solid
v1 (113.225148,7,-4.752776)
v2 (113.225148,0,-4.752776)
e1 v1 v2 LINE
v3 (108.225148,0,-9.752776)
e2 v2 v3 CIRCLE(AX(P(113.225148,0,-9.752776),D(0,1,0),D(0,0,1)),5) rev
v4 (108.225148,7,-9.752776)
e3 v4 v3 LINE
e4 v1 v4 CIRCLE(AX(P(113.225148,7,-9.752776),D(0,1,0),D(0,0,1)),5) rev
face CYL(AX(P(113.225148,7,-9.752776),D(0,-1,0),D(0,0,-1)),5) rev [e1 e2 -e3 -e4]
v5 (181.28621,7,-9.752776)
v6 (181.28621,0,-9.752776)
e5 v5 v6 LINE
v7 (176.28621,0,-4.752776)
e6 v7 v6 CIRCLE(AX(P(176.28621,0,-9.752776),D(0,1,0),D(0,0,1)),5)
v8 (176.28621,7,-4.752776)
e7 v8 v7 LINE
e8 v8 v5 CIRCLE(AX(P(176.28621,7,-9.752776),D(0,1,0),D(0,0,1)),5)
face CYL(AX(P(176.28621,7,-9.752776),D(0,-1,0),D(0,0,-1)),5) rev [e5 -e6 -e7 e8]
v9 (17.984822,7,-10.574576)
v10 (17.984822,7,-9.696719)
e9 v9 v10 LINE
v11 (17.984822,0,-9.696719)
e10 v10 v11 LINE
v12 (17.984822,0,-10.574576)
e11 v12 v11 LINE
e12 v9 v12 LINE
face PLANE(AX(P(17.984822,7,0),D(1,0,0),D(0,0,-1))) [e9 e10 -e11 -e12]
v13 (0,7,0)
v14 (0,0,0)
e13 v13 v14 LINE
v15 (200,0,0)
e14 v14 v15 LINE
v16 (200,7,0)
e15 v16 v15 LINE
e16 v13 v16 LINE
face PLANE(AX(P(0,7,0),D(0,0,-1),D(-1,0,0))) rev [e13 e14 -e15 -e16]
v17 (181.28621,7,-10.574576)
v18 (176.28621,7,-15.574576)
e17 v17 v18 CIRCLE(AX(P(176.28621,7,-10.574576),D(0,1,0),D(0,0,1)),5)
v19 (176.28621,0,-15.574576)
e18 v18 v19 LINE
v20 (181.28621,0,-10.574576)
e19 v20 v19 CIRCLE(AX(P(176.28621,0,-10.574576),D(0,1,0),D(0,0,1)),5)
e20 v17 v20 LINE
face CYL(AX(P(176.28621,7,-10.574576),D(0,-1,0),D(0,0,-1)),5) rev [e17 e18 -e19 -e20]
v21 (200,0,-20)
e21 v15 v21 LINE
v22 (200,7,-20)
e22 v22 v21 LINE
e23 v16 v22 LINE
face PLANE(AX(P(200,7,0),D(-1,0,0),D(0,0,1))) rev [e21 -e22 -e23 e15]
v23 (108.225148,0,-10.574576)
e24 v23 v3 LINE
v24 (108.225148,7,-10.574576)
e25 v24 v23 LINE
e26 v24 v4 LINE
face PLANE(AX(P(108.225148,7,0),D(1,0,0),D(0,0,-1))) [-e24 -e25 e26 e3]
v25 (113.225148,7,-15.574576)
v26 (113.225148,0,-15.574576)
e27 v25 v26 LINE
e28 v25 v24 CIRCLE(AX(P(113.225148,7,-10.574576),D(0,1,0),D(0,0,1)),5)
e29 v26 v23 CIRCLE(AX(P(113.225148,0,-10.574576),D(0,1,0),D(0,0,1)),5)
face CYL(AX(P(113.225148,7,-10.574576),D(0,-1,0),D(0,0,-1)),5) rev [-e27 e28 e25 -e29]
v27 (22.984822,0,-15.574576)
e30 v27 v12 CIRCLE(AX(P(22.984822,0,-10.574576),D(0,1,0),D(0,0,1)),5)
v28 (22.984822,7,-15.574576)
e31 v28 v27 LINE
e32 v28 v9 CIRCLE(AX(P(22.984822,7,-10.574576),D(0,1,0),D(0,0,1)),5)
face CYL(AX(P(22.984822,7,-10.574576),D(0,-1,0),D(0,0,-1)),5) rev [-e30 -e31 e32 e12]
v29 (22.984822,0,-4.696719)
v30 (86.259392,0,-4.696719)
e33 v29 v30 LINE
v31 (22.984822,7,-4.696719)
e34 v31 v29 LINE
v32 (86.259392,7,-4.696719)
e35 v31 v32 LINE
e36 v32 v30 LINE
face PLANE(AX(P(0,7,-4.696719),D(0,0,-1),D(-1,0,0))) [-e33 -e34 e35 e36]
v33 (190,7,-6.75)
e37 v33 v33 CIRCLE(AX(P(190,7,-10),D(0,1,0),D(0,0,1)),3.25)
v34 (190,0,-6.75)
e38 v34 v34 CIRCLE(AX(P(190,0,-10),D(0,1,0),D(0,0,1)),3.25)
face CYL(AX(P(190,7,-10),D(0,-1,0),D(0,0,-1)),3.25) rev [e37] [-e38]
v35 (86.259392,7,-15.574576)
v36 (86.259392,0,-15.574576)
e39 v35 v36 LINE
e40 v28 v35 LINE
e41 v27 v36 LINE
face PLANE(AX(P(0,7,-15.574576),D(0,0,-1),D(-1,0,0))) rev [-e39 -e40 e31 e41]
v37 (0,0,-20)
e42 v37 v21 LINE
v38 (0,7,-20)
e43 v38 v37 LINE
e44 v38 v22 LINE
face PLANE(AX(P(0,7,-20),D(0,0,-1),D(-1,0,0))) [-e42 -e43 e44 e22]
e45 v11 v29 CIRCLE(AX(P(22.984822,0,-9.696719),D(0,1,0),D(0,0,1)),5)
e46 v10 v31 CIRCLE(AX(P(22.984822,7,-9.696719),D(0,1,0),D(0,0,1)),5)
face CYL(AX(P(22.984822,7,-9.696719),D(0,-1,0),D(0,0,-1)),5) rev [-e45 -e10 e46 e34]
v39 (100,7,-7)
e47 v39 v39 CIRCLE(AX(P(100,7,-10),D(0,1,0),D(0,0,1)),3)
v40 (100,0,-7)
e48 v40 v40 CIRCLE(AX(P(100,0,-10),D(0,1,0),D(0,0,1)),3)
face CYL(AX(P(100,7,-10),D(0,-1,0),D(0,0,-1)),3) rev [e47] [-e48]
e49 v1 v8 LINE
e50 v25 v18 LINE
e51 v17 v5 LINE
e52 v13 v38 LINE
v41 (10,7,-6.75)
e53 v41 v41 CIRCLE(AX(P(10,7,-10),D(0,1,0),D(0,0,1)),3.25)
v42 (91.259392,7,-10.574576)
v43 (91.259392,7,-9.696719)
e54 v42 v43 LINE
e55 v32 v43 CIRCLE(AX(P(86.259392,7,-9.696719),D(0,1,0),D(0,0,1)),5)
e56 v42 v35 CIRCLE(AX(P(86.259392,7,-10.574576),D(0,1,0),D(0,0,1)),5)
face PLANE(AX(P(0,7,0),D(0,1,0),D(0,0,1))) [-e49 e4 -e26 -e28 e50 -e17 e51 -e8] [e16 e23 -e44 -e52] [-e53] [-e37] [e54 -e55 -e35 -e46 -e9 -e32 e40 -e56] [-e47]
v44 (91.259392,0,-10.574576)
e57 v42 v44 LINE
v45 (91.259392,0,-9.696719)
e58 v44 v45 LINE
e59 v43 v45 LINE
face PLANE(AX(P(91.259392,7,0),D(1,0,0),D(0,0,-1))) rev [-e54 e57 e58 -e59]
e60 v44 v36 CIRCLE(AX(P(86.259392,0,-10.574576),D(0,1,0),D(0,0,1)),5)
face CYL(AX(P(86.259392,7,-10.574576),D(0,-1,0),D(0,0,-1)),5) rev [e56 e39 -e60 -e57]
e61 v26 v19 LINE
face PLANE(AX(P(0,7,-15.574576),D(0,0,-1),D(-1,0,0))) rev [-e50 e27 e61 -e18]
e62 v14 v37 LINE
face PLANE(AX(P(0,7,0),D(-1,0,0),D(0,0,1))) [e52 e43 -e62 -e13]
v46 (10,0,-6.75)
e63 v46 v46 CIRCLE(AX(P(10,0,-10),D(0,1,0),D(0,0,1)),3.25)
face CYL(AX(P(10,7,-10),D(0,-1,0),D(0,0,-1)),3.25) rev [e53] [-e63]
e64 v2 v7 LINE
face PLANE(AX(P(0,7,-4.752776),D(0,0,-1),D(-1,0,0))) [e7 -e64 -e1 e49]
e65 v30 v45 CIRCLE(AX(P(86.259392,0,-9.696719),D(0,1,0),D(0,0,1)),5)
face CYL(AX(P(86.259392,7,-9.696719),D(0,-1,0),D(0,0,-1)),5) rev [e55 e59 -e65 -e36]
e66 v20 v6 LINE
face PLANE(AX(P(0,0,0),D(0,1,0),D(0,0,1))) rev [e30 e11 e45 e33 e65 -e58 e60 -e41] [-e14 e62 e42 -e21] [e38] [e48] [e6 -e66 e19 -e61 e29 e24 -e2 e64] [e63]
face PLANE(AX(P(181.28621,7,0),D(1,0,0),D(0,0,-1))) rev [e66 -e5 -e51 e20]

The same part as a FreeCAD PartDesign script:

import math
import FreeCAD as App
import Part
import Sketcher
from FreeCAD import Vector
Q = App.Units.Quantity


def add_polygon(sketch, points):
    """Adds a closed chain of lines whose ends are joined by coincident constraints."""
    first, n = sketch.GeometryCount, len(points)
    for a, b in zip(points, points[1:] + points[:1]):
        sketch.addGeometry(Part.LineSegment(App.Vector(*a, 0), App.Vector(*b, 0)), False)
    for i in range(n):
        sketch.addConstraint(Sketcher.Constraint("Coincident", first + i, 2, first + (i + 1) % n, 1))

doc = App.newDocument("Part")
body = doc.addObject("PartDesign::Body", "Body")

sketch1 = doc.addObject("Sketcher::SketchObject", "Sketch")
body.addObject(sketch1)
sketch1.AttachmentSupport = (doc.XZ_Plane, [""])
sketch1.MapMode = "FlatFace"
add_polygon(sketch1, [(0, -20), (0, 0), (200, 0), (200, -20)])
sketch1.addGeometry(Part.Circle(Vector(10, -10, 0), Vector(0, 0, 1), 3.2), False)
sketch1.addGeometry(Part.Circle(Vector(100, -10, 0), Vector(0, 0, 1), 3), False)
sketch1.addGeometry(Part.Circle(Vector(190, -10, 0), Vector(0, 0, 1), 3.2), False)
sketch1.addGeometry(Part.ArcOfCircle(Part.Circle(Vector(23, -10.6, 0), Vector(0, 0, 1), 5), math.radians(180), math.radians(270)), False)
sketch1.addGeometry(Part.LineSegment(Vector(23, -15.6, 0), Vector(86.3, -15.6, 0)), False)
sketch1.addGeometry(Part.ArcOfCircle(Part.Circle(Vector(86.3, -10.6, 0), Vector(0, 0, 1), 5), math.radians(-90), math.radians(0)), False)
sketch1.addGeometry(Part.LineSegment(Vector(91.3, -10.6, 0), Vector(91.3, -9.7, 0)), False)
sketch1.addGeometry(Part.ArcOfCircle(Part.Circle(Vector(86.3, -9.7, 0), Vector(0, 0, 1), 5), math.radians(0), math.radians(90)), False)
sketch1.addGeometry(Part.LineSegment(Vector(86.3, -4.7, 0), Vector(23, -4.7, 0)), False)
sketch1.addGeometry(Part.ArcOfCircle(Part.Circle(Vector(23, -9.7, 0), Vector(0, 0, 1), 5), math.radians(90), math.radians(180)), False)
sketch1.addGeometry(Part.LineSegment(Vector(18, -9.7, 0), Vector(18, -10.6, 0)), False)
sketch1.addGeometry(Part.ArcOfCircle(Part.Circle(Vector(113.2, -10.6, 0), Vector(0, 0, 1), 5), math.radians(180), math.radians(270)), False)
sketch1.addGeometry(Part.LineSegment(Vector(113.2, -15.6, 0), Vector(176.3, -15.6, 0)), False)
sketch1.addGeometry(Part.ArcOfCircle(Part.Circle(Vector(176.3, -10.6, 0), Vector(0, 0, 1), 5), math.radians(-90), math.radians(0)), False)
sketch1.addGeometry(Part.LineSegment(Vector(181.3, -10.6, 0), Vector(181.3, -9.8, 0)), False)
sketch1.addGeometry(Part.ArcOfCircle(Part.Circle(Vector(176.3, -9.8, 0), Vector(0, 0, 1), 5), math.radians(0), math.radians(90)), False)
sketch1.addGeometry(Part.LineSegment(Vector(176.3, -4.8, 0), Vector(113.2, -4.8, 0)), False)
sketch1.addGeometry(Part.ArcOfCircle(Part.Circle(Vector(113.2, -9.8, 0), Vector(0, 0, 1), 5), math.radians(90), math.radians(180)), False)
sketch1.addGeometry(Part.LineSegment(Vector(108.2, -9.8, 0), Vector(108.2, -10.6, 0)), False)
sketch1.addConstraint([
    Sketcher.Constraint("Tangent", 7, 2, 8, 1),
    Sketcher.Constraint("Tangent", 8, 2, 9, 1),
    Sketcher.Constraint("Tangent", 9, 2, 10, 1),
    Sketcher.Constraint("Tangent", 10, 2, 11, 1),
    Sketcher.Constraint("Tangent", 11, 2, 12, 1),
    Sketcher.Constraint("Tangent", 12, 2, 13, 1),
    Sketcher.Constraint("Tangent", 13, 2, 14, 1),
    Sketcher.Constraint("Tangent", 14, 2, 7, 1),
    Sketcher.Constraint("Tangent", 15, 2, 16, 1),
    Sketcher.Constraint("Tangent", 16, 2, 17, 1),
    Sketcher.Constraint("Tangent", 17, 2, 18, 1),
    Sketcher.Constraint("Tangent", 18, 2, 19, 1),
    Sketcher.Constraint("Tangent", 19, 2, 20, 1),
    Sketcher.Constraint("Tangent", 20, 2, 21, 1),
    Sketcher.Constraint("Tangent", 21, 2, 22, 1),
    Sketcher.Constraint("Tangent", 22, 2, 15, 1),
    Sketcher.Constraint("Vertical", 0),
    Sketcher.Constraint("Horizontal", 1),
    Sketcher.Constraint("Vertical", 2),
    Sketcher.Constraint("Horizontal", 3),
    Sketcher.Constraint("Horizontal", 8),
    Sketcher.Constraint("Vertical", 10),
    Sketcher.Constraint("Horizontal", 12),
    Sketcher.Constraint("Vertical", 14),
    Sketcher.Constraint("Horizontal", 16),
    Sketcher.Constraint("Vertical", 18),
    Sketcher.Constraint("Horizontal", 20),
    Sketcher.Constraint("Vertical", 22),
    Sketcher.Constraint("Coincident", 0, 2, -1, 1),
    Sketcher.Constraint("Equal", 4, 6),
    Sketcher.Constraint("Equal", 7, 9),
    Sketcher.Constraint("Equal", 9, 11),
    Sketcher.Constraint("Equal", 11, 13),
    Sketcher.Constraint("Equal", 13, 15),
    Sketcher.Constraint("Equal", 15, 17),
    Sketcher.Constraint("Equal", 17, 19),
    Sketcher.Constraint("Equal", 19, 21),
    Sketcher.Constraint("Horizontal", 4, 3, 5, 3),
    Sketcher.Constraint("Horizontal", 5, 3, 6, 3),
    Sketcher.Constraint("Horizontal", 9, 3, 15, 3),
    Sketcher.Constraint("Diameter", 5, Q("6 mm")),
    Sketcher.Constraint("Radius", 7, Q("5 mm")),
    Sketcher.Constraint("Diameter", 4, Q("6.5 mm")),
    Sketcher.Constraint("DistanceX", 1, 1, 1, 2, Q("200 mm")),
    Sketcher.Constraint("DistanceY", 0, 1, 0, 2, Q("20 mm")),
    Sketcher.Constraint("DistanceX", -1, 1, 4, 3, Q("10 mm")),
    Sketcher.Constraint("DistanceY", 4, 3, -1, 1, Q("10 mm")),
    Sketcher.Constraint("DistanceX", -1, 1, 5, 3, Q("100 mm")),
    Sketcher.Constraint("DistanceX", -1, 1, 6, 3, Q("190 mm")),
    Sketcher.Constraint("DistanceY", 18, 1, 18, 2, Q("0.8218 mm")),
    Sketcher.Constraint("DistanceX", 8, 1, 8, 2, Q("63.27457 mm")),
    Sketcher.Constraint("DistanceX", 16, 1, 16, 2, Q("63.061062 mm")),
    Sketcher.Constraint("DistanceY", 10, 1, 10, 2, Q("0.877857 mm")),
    Sketcher.Constraint("DistanceY", 11, 3, -1, 1, Q("9.696719 mm")),
    Sketcher.Constraint("DistanceX", -1, 1, 15, 3, Q("113.225148 mm")),
    Sketcher.Constraint("DistanceX", -1, 1, 7, 3, Q("22.984822 mm")),
])
pad1 = doc.addObject("PartDesign::Pad", "Pad")
body.addObject(pad1)
pad1.Profile = sketch1
pad1.Length = 7
pad1.Reversed = True

doc.recompute()
